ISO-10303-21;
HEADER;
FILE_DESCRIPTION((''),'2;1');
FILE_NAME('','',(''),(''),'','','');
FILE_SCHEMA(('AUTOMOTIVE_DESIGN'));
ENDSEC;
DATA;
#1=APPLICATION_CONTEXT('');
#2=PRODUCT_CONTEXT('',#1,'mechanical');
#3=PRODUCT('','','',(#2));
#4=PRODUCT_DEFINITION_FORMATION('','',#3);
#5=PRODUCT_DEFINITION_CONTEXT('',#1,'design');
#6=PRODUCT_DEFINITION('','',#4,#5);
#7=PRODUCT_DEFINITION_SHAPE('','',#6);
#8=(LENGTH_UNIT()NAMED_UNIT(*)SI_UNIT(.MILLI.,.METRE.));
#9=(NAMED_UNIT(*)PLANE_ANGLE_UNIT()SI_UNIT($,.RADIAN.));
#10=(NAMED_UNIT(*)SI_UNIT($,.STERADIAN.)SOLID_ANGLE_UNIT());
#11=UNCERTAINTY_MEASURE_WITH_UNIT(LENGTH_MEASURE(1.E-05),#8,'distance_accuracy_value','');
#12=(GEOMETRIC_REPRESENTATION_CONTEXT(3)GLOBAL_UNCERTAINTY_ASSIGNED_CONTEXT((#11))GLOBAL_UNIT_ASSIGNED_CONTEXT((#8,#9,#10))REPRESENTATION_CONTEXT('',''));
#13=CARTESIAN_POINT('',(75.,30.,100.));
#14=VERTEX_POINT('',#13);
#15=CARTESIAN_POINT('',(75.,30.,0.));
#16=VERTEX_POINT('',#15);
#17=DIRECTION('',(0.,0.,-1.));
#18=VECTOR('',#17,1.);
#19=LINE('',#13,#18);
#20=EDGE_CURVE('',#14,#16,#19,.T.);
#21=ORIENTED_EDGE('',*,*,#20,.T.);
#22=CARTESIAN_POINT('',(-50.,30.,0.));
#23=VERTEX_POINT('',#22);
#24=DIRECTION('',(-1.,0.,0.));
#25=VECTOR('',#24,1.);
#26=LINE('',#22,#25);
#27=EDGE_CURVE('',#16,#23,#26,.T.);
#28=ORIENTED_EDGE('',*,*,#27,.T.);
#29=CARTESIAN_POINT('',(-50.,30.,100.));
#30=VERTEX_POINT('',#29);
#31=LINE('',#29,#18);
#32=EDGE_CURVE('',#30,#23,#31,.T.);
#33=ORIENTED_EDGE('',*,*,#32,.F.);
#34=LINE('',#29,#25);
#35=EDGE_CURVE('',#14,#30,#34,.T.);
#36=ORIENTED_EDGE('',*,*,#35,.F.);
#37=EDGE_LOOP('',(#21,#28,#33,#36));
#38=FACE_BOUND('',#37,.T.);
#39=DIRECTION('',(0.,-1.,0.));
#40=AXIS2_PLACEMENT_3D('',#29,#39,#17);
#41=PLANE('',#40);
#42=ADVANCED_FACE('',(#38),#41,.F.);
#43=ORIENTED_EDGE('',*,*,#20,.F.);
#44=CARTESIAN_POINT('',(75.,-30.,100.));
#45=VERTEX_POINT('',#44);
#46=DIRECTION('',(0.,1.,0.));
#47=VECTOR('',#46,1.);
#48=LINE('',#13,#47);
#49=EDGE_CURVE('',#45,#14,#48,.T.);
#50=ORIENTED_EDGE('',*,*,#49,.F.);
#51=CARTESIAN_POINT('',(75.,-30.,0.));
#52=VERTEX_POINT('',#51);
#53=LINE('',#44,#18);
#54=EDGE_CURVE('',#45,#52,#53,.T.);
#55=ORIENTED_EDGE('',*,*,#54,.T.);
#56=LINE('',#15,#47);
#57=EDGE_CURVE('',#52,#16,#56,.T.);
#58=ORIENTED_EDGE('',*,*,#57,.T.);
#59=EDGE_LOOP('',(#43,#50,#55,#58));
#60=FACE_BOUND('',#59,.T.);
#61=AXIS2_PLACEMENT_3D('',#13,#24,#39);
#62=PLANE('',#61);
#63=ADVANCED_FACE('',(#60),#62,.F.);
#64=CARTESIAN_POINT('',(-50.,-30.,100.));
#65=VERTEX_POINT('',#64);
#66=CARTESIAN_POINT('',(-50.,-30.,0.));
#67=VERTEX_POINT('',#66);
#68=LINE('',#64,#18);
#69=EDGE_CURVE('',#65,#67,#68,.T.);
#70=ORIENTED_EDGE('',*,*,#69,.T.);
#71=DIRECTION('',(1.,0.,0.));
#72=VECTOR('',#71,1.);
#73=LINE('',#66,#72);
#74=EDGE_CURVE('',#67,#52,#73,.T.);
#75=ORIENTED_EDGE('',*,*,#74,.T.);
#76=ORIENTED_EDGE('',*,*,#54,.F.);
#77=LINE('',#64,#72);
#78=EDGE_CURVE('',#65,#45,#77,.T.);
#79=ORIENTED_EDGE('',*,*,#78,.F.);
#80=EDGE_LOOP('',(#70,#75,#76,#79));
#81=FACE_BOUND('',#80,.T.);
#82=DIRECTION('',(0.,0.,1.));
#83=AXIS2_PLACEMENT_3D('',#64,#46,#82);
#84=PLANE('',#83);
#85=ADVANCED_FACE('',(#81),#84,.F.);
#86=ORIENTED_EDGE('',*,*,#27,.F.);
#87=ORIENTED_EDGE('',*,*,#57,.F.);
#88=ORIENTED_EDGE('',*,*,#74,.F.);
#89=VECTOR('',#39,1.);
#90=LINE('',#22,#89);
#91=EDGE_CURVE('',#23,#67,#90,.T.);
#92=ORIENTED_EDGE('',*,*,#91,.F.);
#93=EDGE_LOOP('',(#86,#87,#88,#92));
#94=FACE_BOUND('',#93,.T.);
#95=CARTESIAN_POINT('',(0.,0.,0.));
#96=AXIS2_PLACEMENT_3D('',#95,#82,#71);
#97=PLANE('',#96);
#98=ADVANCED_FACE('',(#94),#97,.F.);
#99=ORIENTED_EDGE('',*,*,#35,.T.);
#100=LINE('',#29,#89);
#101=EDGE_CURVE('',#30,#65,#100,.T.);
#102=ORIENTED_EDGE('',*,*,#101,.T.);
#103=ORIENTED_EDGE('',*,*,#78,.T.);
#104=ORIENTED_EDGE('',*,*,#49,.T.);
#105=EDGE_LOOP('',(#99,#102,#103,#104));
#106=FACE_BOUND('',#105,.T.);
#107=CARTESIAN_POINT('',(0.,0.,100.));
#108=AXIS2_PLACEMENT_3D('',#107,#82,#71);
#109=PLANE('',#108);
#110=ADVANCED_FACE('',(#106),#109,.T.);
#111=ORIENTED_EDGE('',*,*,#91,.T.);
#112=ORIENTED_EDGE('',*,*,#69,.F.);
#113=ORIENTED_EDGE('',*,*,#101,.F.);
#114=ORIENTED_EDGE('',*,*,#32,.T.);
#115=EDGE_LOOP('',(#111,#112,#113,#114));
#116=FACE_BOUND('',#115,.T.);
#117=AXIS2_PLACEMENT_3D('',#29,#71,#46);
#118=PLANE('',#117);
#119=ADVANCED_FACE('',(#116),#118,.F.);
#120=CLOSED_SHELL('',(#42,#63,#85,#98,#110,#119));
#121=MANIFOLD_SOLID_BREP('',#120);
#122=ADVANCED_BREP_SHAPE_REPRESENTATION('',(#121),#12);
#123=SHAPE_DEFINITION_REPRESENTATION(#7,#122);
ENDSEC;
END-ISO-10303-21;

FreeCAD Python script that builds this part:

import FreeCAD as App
import Part
import Sketcher
from FreeCAD import Vector


def add_polygon(sketch, points):
    """Adds a closed chain of lines whose ends are joined by coincident constraints."""
    first, n = sketch.GeometryCount, len(points)
    for a, b in zip(points, points[1:] + points[:1]):
        sketch.addGeometry(Part.LineSegment(App.Vector(*a, 0), App.Vector(*b, 0)), False)
    for i in range(n):
        sketch.addConstraint(Sketcher.Constraint("Coincident", first + i, 2, first + (i + 1) % n, 1))

doc = App.newDocument("Part")
params = doc.addObject("Spreadsheet::Sheet", "Params")
for row, (alias, value) in enumerate([
    ("sketch1_width", "125 mm"),
    ("sketch1_height", "60 mm"),
    ("pad1_length", "100 mm"),
], start=1):
    params.set(f"A{row}", alias)
    params.set(f"B{row}", "=" + value)
    params.setAlias(f"B{row}", alias)

body = doc.addObject("PartDesign::Body", "Body")

# Sketch on XY plane
sketch1 = doc.addObject("Sketcher::SketchObject", "Sketch")
body.addObject(sketch1)
sketch1.AttachmentSupport = (doc.XY_Plane, [""])
sketch1.MapMode = "FlatFace"
add_polygon(sketch1, [(-50, 30), (-50, -30), (75, -30), (75, 30)])  # lines 0-3
sketch1.addConstraint(Sketcher.Constraint("Vertical", 0))
sketch1.addConstraint(Sketcher.Constraint("Horizontal", 1))
sketch1.addConstraint(Sketcher.Constraint("Vertical", 2))
sketch1.addConstraint(Sketcher.Constraint("Horizontal", 3))
sketch1.addConstraint(Sketcher.Constraint("DistanceX", 1, 1, 1, 2, 125.0))
sketch1.addConstraint(Sketcher.Constraint("DistanceY", 0, 2, 0, 1, 60.0))
sketch1.addConstraint(Sketcher.Constraint("DistanceX", 0, 2, -1, 1, 50.0))
sketch1.addConstraint(Sketcher.Constraint("DistanceY", 0, 2, -1, 1, 30.0))
sketch1.setExpression("Constraints[8]", "Params.sketch1_width")
sketch1.setExpression("Constraints[9]", "Params.sketch1_height")
pad1 = doc.addObject("PartDesign::Pad", "Pad")
body.addObject(pad1)
pad1.Profile = sketch1
pad1.setExpression("Length", "Params.pad1_length")

doc.recompute()
